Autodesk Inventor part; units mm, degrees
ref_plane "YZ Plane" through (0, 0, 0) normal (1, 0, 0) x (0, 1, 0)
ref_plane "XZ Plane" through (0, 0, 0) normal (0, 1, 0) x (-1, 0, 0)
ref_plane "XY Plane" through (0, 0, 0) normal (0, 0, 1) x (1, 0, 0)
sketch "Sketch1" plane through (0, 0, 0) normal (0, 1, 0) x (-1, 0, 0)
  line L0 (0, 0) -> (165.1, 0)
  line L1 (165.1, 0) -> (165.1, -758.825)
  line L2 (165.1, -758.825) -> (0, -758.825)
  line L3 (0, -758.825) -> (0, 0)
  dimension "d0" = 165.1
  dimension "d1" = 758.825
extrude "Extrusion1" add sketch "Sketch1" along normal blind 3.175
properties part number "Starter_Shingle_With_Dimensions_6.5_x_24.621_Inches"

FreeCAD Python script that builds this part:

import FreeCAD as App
import Part
import Sketcher
Q = App.Units.Quantity

doc = App.newDocument("Part")
body = doc.addObject("PartDesign::Body", "Body")

# Sketch on XZ plane
sketch1 = body.newObject("Sketcher::SketchObject", "Sketch")
sketch1.AttachmentSupport = (doc.getObject("XZ_Plane"), [""])
sketch1.MapMode = "FlatFace"
sketch1.addGeometry([
    Part.LineSegment(App.Vector(-165.1, 0, 0), App.Vector(0, 0, 0)),
    Part.LineSegment(App.Vector(0, 0, 0), App.Vector(0, -758.825, 0)),
    Part.LineSegment(App.Vector(0, -758.825, 0), App.Vector(-165.1, -758.825, 0)),
    Part.LineSegment(App.Vector(-165.1, -758.825, 0), App.Vector(-165.1, 0, 0)),
], False)
sketch1.addConstraint([
    Sketcher.Constraint("Coincident", 0, 2, 1, 1),
    Sketcher.Constraint("Coincident", 1, 2, 2, 1),
    Sketcher.Constraint("Coincident", 2, 2, 3, 1),
    Sketcher.Constraint("Coincident", 3, 2, 0, 1),
    Sketcher.Constraint("Horizontal", 0),
    Sketcher.Constraint("Vertical", 1),
    Sketcher.Constraint("Horizontal", 2),
    Sketcher.Constraint("Vertical", 3),
    Sketcher.Constraint("Coincident", 0, 2, -1, 1),
    Sketcher.Constraint("DistanceX", 0, 1, 0, 2, Q("6.5 in")),
    Sketcher.Constraint("DistanceY", 1, 2, 1, 1, Q("29.875 in")),
])
pad1 = body.newObject("PartDesign::Pad", "Pad")
pad1.Profile = sketch1
pad1.Length = Q("0.125 in")
pad1.Reversed = True

doc.recompute()
